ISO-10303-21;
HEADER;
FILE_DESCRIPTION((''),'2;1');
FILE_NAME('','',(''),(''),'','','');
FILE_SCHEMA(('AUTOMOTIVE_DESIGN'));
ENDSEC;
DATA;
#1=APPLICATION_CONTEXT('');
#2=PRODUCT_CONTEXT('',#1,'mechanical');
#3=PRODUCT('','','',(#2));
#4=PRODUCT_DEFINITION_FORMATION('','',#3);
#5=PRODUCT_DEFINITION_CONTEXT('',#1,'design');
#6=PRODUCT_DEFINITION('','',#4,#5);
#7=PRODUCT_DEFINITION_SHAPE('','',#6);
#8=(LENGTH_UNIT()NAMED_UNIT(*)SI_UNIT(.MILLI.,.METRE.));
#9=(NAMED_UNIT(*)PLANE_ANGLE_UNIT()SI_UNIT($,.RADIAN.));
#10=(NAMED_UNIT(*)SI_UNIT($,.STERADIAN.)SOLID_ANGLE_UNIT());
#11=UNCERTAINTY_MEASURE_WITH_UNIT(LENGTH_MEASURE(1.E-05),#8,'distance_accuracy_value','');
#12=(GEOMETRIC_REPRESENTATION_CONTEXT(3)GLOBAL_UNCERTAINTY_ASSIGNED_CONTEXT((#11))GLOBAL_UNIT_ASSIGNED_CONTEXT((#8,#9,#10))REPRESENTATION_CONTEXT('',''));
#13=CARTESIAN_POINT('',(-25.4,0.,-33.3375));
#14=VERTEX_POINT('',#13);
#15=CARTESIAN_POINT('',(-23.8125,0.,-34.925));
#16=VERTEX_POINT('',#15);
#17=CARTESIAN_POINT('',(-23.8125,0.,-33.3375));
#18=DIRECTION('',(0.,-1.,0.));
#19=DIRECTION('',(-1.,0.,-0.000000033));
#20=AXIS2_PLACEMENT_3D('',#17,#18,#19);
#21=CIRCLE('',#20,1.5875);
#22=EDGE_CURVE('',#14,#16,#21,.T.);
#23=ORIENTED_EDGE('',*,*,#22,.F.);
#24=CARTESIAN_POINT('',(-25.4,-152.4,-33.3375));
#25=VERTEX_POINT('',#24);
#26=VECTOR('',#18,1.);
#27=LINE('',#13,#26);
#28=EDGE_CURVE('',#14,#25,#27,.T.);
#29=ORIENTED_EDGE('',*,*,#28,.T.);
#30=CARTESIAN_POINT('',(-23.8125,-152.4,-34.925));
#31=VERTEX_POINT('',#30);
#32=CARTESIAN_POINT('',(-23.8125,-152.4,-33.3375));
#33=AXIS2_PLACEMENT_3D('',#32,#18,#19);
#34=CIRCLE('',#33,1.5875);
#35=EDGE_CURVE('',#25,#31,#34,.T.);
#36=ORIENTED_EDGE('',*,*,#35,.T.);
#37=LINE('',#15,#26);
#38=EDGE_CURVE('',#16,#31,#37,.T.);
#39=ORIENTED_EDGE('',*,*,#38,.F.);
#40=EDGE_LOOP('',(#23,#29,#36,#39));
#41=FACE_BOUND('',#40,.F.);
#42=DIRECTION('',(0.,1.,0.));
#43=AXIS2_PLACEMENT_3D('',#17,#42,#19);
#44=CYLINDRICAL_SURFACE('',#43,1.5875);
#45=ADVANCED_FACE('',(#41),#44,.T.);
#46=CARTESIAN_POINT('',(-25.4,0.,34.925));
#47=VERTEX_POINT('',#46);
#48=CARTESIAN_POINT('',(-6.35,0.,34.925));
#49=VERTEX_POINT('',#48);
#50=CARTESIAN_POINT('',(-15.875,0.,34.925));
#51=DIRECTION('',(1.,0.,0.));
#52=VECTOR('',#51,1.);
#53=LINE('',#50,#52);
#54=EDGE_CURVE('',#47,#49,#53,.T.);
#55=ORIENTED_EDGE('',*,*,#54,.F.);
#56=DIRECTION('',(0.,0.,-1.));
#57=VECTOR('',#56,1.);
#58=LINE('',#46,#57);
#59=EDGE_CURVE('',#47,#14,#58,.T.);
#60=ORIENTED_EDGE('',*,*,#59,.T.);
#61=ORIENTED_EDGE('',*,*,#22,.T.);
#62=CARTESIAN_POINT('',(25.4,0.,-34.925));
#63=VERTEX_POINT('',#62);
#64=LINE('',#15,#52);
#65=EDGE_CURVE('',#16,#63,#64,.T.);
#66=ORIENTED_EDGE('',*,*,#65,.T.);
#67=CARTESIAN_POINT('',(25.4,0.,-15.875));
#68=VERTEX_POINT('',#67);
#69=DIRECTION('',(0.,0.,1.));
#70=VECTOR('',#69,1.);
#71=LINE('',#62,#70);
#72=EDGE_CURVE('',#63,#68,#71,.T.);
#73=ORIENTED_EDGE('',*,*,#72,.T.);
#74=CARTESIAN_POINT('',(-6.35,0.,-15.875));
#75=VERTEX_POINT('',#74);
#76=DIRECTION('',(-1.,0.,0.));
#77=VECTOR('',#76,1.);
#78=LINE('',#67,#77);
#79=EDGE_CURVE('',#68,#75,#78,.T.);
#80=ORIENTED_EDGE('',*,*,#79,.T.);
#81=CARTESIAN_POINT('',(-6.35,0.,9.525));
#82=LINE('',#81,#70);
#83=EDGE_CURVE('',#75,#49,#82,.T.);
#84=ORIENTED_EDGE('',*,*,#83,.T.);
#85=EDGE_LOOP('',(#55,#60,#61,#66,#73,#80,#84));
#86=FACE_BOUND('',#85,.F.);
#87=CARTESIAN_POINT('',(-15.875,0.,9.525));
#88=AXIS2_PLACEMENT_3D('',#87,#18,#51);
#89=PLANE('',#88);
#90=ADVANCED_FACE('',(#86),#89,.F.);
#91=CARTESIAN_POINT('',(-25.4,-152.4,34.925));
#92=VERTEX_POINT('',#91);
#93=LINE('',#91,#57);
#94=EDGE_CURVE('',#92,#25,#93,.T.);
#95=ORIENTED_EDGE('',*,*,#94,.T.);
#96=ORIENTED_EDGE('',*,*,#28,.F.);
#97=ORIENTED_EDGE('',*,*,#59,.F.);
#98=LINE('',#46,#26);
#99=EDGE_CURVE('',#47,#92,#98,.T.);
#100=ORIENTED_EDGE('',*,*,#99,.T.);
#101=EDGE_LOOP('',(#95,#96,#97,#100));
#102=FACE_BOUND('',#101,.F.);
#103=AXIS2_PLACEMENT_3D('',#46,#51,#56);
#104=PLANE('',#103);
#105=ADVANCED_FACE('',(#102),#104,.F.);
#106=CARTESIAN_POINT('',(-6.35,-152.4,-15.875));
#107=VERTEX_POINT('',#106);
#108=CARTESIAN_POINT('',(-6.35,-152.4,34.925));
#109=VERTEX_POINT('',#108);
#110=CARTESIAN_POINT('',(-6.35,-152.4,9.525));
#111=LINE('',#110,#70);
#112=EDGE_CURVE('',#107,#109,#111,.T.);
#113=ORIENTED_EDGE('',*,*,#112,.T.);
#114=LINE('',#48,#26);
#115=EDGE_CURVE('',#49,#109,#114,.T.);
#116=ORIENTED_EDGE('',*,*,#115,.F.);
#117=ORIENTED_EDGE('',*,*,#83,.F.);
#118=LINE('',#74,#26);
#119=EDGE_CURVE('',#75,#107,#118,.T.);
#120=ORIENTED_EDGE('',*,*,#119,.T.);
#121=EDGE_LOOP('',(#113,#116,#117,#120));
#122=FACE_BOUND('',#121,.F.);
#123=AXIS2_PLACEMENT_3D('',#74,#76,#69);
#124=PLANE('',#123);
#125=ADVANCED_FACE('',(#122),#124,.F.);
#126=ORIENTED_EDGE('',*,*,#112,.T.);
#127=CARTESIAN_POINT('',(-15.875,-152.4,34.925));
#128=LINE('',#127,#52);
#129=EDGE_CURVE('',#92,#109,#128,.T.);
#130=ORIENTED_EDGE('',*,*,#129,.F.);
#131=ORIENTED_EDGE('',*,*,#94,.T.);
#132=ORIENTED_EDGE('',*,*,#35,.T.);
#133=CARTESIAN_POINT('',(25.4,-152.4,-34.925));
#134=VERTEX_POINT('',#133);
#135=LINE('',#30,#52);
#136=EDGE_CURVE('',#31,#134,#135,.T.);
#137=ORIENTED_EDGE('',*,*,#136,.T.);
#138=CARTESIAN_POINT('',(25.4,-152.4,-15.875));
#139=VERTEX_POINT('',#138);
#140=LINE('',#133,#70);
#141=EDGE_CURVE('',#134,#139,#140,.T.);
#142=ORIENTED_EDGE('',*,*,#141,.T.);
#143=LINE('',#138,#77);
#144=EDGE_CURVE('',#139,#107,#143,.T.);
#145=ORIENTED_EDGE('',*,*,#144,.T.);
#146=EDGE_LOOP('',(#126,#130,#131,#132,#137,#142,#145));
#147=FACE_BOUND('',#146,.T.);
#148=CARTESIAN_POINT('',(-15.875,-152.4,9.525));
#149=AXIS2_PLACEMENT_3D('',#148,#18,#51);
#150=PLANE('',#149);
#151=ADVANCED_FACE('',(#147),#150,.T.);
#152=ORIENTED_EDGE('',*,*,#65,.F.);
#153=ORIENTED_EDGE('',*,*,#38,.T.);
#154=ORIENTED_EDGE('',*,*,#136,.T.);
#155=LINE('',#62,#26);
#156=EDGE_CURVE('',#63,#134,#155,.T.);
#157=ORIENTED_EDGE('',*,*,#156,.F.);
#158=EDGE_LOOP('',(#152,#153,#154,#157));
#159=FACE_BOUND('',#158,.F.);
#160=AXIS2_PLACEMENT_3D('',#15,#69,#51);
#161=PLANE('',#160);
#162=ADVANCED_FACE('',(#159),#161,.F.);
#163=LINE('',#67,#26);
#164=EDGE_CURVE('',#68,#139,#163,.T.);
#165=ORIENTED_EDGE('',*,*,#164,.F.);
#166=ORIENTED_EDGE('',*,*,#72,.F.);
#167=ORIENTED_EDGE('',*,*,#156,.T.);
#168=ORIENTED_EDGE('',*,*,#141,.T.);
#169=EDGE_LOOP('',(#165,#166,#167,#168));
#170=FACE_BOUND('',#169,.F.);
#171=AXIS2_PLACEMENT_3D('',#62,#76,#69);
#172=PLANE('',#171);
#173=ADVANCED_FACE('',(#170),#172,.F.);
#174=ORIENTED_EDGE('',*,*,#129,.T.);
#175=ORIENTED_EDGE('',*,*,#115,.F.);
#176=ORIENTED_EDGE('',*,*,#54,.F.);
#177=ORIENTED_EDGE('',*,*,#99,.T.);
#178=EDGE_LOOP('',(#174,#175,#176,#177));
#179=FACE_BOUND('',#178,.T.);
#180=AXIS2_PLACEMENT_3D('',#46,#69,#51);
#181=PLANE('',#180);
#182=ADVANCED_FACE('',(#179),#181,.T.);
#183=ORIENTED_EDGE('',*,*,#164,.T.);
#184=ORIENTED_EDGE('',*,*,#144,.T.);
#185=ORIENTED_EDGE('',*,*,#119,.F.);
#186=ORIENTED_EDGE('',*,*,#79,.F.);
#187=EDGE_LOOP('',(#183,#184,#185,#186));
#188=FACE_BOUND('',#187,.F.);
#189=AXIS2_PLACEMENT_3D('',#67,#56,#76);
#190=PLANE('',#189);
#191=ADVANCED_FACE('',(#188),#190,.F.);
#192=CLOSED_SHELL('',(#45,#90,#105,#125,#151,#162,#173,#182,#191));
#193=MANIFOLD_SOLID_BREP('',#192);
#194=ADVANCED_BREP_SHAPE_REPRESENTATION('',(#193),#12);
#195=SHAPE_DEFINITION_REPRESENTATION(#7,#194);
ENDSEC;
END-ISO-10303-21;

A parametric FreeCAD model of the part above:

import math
import FreeCAD as App
import Part
import Sketcher
Q = App.Units.Quantity

doc = App.newDocument("Part")
body = doc.addObject("PartDesign::Body", "Body")

# Sketch on XZ plane
sketch1 = doc.addObject("Sketcher::SketchObject", "Sketch")
body.addObject(sketch1)
sketch1.AttachmentSupport = (doc.XZ_Plane, [""])
sketch1.MapMode = "FlatFace"
sketch1.addGeometry([
    Part.LineSegment(App.Vector(-25.4, 34.925, 0), App.Vector(-25.4, -33.3375, 0)),  # 0
    Part.ArcOfCircle(Part.Circle(App.Vector(-23.8125, -33.3375, 0), App.Vector(0, 0, 1), 1.5875), math.radians(-179.999998), math.radians(-90.000002)),  # 1
    Part.LineSegment(App.Vector(-23.8125, -34.925, 0), App.Vector(25.4, -34.925, 0)),  # 2
    Part.LineSegment(App.Vector(25.4, -34.925, 0), App.Vector(25.4, -15.875, 0)),  # 3
    Part.LineSegment(App.Vector(25.4, -15.875, 0), App.Vector(-6.35, -15.875, 0)),  # 4
    Part.LineSegment(App.Vector(-6.35, -15.875, 0), App.Vector(-6.35, 34.925, 0)),  # 5
    Part.LineSegment(App.Vector(-6.35, 34.925, 0), App.Vector(-25.4, 34.925, 0)),  # 6
], False)
sketch1.addConstraint([
    Sketcher.Constraint("Tangent", 0, 2, 1, 1),
    Sketcher.Constraint("Tangent", 1, 2, 2, 1),
    Sketcher.Constraint("Coincident", 2, 2, 3, 1),
    Sketcher.Constraint("Coincident", 3, 2, 4, 1),
    Sketcher.Constraint("Coincident", 4, 2, 5, 1),
    Sketcher.Constraint("Coincident", 5, 2, 6, 1),
    Sketcher.Constraint("Coincident", 6, 2, 0, 1),
    Sketcher.Constraint("Vertical", 0),
    Sketcher.Constraint("Horizontal", 2),
    Sketcher.Constraint("Vertical", 3),
    Sketcher.Constraint("Horizontal", 4),
    Sketcher.Constraint("Vertical", 5),
    Sketcher.Constraint("Horizontal", 6),
    Sketcher.Constraint("Symmetric", 2, 2, 6, 2, -1, 1),
    Sketcher.Constraint("Equal", 6, 3),
    Sketcher.Constraint("DistanceY", 5, 1, 5, 2, Q("2 in")),
    Sketcher.Constraint("DistanceX", 0, 2, -1, 1, Q("1 in")),
    Sketcher.Constraint("Radius", 1, Q("0.0625 in")),
    Sketcher.Constraint("DistanceX", 4, 2, 4, 1, Q("1.25 in")),
])
pad1 = doc.addObject("PartDesign::Pad", "Pad")
body.addObject(pad1)
pad1.Profile = sketch1
pad1.Length = Q("6 in")

doc.recompute()
